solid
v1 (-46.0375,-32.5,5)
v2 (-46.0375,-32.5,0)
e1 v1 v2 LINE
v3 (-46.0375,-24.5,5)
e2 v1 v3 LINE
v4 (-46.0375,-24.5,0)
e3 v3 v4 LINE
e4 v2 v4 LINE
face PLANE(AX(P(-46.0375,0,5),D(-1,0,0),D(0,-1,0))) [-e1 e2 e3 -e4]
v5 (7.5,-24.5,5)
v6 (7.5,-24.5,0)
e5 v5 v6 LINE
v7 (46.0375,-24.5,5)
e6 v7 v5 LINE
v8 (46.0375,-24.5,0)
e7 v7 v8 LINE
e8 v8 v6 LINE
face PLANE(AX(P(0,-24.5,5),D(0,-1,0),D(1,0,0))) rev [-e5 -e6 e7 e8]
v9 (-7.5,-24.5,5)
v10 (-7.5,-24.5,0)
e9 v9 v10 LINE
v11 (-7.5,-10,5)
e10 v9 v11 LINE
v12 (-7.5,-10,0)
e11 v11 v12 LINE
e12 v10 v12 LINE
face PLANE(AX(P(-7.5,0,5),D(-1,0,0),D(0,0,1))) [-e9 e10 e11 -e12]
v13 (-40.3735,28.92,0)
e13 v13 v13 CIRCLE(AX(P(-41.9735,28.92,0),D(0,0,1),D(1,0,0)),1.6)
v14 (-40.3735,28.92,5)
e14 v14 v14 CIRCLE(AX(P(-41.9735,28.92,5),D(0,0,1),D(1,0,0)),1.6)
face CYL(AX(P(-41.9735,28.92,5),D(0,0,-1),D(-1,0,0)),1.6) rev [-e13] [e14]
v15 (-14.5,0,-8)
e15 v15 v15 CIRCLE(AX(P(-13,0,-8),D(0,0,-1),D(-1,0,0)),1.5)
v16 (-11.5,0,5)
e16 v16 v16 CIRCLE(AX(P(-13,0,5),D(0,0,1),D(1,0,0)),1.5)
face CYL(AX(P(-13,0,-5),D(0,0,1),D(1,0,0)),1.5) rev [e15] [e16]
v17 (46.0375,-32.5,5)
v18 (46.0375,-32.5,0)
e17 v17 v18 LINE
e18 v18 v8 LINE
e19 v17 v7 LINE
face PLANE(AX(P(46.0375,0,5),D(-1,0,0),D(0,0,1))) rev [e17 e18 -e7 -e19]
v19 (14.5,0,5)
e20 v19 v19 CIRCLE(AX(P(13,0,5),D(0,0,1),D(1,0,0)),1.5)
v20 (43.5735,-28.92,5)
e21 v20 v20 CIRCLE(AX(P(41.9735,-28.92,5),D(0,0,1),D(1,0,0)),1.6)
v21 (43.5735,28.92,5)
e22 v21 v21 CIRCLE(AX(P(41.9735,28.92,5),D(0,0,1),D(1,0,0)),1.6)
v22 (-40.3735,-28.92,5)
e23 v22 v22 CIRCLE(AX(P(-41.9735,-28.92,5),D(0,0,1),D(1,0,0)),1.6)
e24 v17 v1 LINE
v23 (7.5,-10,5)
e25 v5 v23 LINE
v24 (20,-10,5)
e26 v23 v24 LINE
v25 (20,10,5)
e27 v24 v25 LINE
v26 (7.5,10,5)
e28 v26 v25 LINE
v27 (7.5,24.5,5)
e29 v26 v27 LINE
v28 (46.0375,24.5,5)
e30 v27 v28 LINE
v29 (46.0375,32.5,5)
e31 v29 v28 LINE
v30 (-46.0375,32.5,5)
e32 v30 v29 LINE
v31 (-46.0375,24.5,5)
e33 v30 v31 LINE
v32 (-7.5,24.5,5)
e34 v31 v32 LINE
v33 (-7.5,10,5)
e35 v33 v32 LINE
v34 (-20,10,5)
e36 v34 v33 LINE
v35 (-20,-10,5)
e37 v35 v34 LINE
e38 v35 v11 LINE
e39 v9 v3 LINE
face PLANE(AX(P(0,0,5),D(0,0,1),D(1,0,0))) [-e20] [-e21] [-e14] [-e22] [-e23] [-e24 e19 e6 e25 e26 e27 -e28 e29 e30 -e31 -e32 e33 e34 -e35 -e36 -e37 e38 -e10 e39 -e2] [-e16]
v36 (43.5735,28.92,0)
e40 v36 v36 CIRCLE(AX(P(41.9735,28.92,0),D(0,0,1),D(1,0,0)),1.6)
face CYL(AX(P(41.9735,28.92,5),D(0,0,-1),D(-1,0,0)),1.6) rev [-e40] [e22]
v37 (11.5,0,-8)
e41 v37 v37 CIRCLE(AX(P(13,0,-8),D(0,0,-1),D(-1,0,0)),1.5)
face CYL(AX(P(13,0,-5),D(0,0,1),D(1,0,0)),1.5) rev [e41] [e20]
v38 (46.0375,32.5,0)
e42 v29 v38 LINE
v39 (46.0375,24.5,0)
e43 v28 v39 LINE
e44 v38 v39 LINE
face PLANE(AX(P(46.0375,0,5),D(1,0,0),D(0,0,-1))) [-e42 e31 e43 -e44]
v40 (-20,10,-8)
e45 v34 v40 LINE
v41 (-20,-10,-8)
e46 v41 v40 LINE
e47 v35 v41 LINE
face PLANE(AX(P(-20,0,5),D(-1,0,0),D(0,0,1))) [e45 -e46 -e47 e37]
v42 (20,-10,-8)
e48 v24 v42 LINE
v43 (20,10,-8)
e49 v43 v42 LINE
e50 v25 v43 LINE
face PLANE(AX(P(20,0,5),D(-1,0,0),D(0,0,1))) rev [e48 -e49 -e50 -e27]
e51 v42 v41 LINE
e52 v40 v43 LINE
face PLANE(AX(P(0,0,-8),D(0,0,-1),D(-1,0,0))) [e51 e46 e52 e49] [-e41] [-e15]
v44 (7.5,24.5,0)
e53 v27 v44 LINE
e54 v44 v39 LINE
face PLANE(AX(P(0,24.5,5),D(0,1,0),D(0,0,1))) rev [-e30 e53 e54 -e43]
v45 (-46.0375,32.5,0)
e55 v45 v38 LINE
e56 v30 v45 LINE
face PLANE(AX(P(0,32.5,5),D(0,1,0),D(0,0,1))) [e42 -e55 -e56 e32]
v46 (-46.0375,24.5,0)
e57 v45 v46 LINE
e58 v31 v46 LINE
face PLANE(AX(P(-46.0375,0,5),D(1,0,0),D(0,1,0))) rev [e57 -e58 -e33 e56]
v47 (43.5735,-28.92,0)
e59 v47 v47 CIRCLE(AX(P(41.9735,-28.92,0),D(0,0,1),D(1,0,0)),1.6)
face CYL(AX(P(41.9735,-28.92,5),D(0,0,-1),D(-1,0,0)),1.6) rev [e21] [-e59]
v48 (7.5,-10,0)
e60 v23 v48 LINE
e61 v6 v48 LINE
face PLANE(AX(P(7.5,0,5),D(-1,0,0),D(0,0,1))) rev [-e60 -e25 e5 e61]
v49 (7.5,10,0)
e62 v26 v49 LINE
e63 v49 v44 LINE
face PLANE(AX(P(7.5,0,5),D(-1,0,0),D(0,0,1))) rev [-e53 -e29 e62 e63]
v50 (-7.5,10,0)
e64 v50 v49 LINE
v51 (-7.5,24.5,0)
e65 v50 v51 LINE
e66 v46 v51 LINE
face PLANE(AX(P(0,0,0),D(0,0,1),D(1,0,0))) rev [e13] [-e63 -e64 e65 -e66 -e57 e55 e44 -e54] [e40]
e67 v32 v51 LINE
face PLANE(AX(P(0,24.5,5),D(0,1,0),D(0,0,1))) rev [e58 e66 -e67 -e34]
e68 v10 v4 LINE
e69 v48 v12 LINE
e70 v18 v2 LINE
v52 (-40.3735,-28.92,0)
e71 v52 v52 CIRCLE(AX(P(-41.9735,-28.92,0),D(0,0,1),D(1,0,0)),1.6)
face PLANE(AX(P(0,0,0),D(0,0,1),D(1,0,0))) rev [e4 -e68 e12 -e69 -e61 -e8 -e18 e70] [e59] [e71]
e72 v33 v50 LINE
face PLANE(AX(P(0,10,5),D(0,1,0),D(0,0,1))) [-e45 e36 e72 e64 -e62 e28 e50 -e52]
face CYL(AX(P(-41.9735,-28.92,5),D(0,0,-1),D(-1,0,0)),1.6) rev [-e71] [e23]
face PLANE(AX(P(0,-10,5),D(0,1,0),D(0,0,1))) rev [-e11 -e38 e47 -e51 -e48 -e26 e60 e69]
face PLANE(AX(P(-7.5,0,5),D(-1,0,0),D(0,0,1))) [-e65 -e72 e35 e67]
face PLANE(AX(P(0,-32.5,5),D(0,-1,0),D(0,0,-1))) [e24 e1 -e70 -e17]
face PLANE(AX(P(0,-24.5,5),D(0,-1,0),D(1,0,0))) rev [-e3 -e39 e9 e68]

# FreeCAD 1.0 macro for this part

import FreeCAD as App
import Part
import Sketcher

V = App.Vector


def add_polygon(sketch, points):
    """Adds a closed chain of lines whose ends are joined by coincident constraints."""
    first, n = sketch.GeometryCount, len(points)
    for a, b in zip(points, points[1:] + points[:1]):
        sketch.addGeometry(Part.LineSegment(App.Vector(*a, 0), App.Vector(*b, 0)), False)
    for i in range(n):
        sketch.addConstraint(Sketcher.Constraint("Coincident", first + i, 2, first + (i + 1) % n, 1))

doc = App.newDocument("Part")
params = doc.addObject("Spreadsheet::Sheet", "Params")
for row, (alias, value) in enumerate([
    ("sketch1_diameter", "3.2 mm"),
    ("sketch1_height", "8 mm"),
    ("sketch1_height2", "20 mm"),
    ("sketch1_width", "12.5 mm"),
    ("sketch1_height3", "14.5 mm"),
    ("pad1_length", "5 mm"),
    ("sketch2_diameter", "3 mm"),
    ("pocket1_length", "10 mm"),
    ("sketch3_diameter", "3 mm"),
    ("sketch3_width", "40 mm"),
    ("sketch3_height", "20 mm"),
    ("pad2_length", "8 mm"),
], start=1):
    params.set(f"A{row}", alias)
    params.set(f"B{row}", "=" + value)
    params.setAlias(f"B{row}", alias)

body = doc.addObject("PartDesign::Body", "Body")

# Sketch on XY plane
sketch1 = doc.addObject("Sketcher::SketchObject", "Sketch")
body.addObject(sketch1)
sketch1.AttachmentSupport = (doc.XY_Plane, [""])
sketch1.MapMode = "FlatFace"
add_polygon(sketch1, [(-46, 32.5), (-46, 24.5), (-7.5, 24.5), (-7.5, 10), (-20, 10), (-20, -10), (-7.5, -10), (-7.5, -24.5), (-46, -24.5), (-46, -32.5), (46, -32.5), (46, -24.5), (7.5, -24.5), (7.5, -10), (20, -10), (20, 10), (7.5, 10), (7.5, 24.5), (46, 24.5), (46, 32.5)])  # lines 0-19
sketch1.addGeometry(Part.Circle(V(-42, 28.9, 0), V(0, 0, 1), 1.6), False)  # 20
sketch1.addGeometry(Part.Circle(V(42, 28.9, 0), V(0, 0, 1), 1.6), False)  # 21
sketch1.addGeometry(Part.Circle(V(42, -28.9, 0), V(0, 0, 1), 1.6), False)  # 22
sketch1.addGeometry(Part.Circle(V(-42, -28.9, 0), V(0, 0, 1), 1.6), False)  # 23
sketch1.addConstraint([
    Sketcher.Constraint("Vertical", 0),
    Sketcher.Constraint("Horizontal", 1),
    Sketcher.Constraint("Vertical", 2),
    Sketcher.Constraint("Horizontal", 3),
    Sketcher.Constraint("Vertical", 4),
    Sketcher.Constraint("Horizontal", 5),
    Sketcher.Constraint("Vertical", 6),
    Sketcher.Constraint("Horizontal", 7),
    Sketcher.Constraint("Vertical", 8),
    Sketcher.Constraint("Horizontal", 9),
    Sketcher.Constraint("Vertical", 10),
    Sketcher.Constraint("Horizontal", 11),
    Sketcher.Constraint("Vertical", 12),
    Sketcher.Constraint("Horizontal", 13),
    Sketcher.Constraint("Vertical", 14),
    Sketcher.Constraint("Horizontal", 15),
    Sketcher.Constraint("Vertical", 16),
    Sketcher.Constraint("Horizontal", 17),
    Sketcher.Constraint("Vertical", 18),
    Sketcher.Constraint("Horizontal", 19),
    Sketcher.Constraint("Equal", 20, 21),
    Sketcher.Constraint("Equal", 21, 22),
    Sketcher.Constraint("Equal", 22, 23),
    Sketcher.Constraint("Symmetric", 20, 3, 22, 3, -1, 1),
    Sketcher.Constraint("Symmetric", 21, 3, 23, 3, -1, 1),
    Sketcher.Constraint("Symmetric", 0, 2, 10, 2, -1, 1),
    Sketcher.Constraint("Symmetric", 2, 2, 12, 2, -1, 1),
    Sketcher.Constraint("Symmetric", 4, 2, 14, 2, -1, 1),
    Sketcher.Constraint("Symmetric", 6, 2, 16, 2, -1, 1),
    Sketcher.Constraint("Symmetric", 8, 2, 18, 2, -1, 1),
    Sketcher.Constraint("Symmetric", 20, 3, 21, 3, -2),
    Sketcher.Constraint("Symmetric", 7, 2, 10, 2, -2),
    Sketcher.Constraint("Symmetric", 5, 2, 12, 2, -2),
    Sketcher.Constraint("Diameter", 20, 3.2),
    Sketcher.Constraint("DistanceY", 0, 2, 0, 1, 8.0),
    Sketcher.Constraint("DistanceY", 4, 2, 4, 1, 20.0),
    Sketcher.Constraint("DistanceX", 3, 2, 3, 1, 12.5),
    Sketcher.Constraint("DistanceY", 2, 2, 2, 1, 14.5),
    Sketcher.Constraint("DistanceX", 3, 2, -1, 1, 20.0),
    Sketcher.Constraint("DistanceX", 9, 1, 9, 2, 92.075),
    Sketcher.Constraint("DistanceY", -1, 1, 20, 3, 28.92),
    Sketcher.Constraint("DistanceX", 20, 3, 21, 3, 83.947),
])
sketch1.setExpression("Constraints[53]", "Params.sketch1_diameter")
sketch1.setExpression("Constraints[54]", "Params.sketch1_height")
sketch1.setExpression("Constraints[55]", "Params.sketch1_height2")
sketch1.setExpression("Constraints[56]", "Params.sketch1_width")
sketch1.setExpression("Constraints[57]", "Params.sketch1_height3")
pad1 = doc.addObject("PartDesign::Pad", "Pad")
body.addObject(pad1)
pad1.Profile = sketch1
pad1.setExpression("Length", "Params.pad1_length")

# Sketch on XY plane
sketch2 = doc.addObject("Sketcher::SketchObject", "Sketch001")
body.addObject(sketch2)
sketch2.AttachmentSupport = (doc.XY_Plane, [""])
sketch2.MapMode = "FlatFace"
sketch2.AttachmentOffset = App.Placement(V(0, 0, 5), App.Rotation())
sketch2.addGeometry([
    Part.Circle(V(13, 0, 0), V(0, 0, 1), 1.5),
    Part.Circle(V(-13, 0, 0), V(0, 0, 1), 1.5),
], False)
sketch2.addConstraint([
    Sketcher.Constraint("Equal", 0, 1),
    Sketcher.Constraint("Symmetric", 0, 3, 1, 3, -1, 1),
    Sketcher.Constraint("PointOnObject", 0, 3, -1),
    Sketcher.Constraint("Diameter", 0, 3.0),
    Sketcher.Constraint("DistanceX", -1, 1, 0, 3, 13.0),
])
sketch2.setExpression("Constraints[3]", "Params.sketch2_diameter")
pocket1 = doc.addObject("PartDesign::Pocket", "Pocket")
body.addObject(pocket1)
pocket1.Profile = sketch2
pocket1.setExpression("Length", "Params.pocket1_length")

# Sketch on XY plane
sketch3 = doc.addObject("Sketcher::SketchObject", "Sketch002")
body.addObject(sketch3)
sketch3.AttachmentSupport = (doc.XY_Plane, [""])
sketch3.MapMode = "FlatFace"
add_polygon(sketch3, [(20, 10), (20, -10), (-20, -10), (-20, 10)])  # lines 0-3
sketch3.addGeometry(Part.Circle(V(13, 0, 0), V(0, 0, 1), 1.5), False)  # 4
sketch3.addGeometry(Part.Circle(V(-13, 0, 0), V(0, 0, 1), 1.5), False)  # 5
sketch3.addConstraint([
    Sketcher.Constraint("Vertical", 0),
    Sketcher.Constraint("Horizontal", 1),
    Sketcher.Constraint("Vertical", 2),
    Sketcher.Constraint("Horizontal", 3),
    Sketcher.Constraint("Equal", 4, 5),
    Sketcher.Constraint("Symmetric", 4, 3, 5, 3, -1, 1),
    Sketcher.Constraint("Symmetric", 0, 2, 2, 2, -1, 1),
    Sketcher.Constraint("PointOnObject", 4, 3, -1),
    Sketcher.Constraint("Diameter", 4, 3.0),
    Sketcher.Constraint("DistanceX", 1, 2, 1, 1, 40.0),
    Sketcher.Constraint("DistanceY", 0, 2, 0, 1, 20.0),
    Sketcher.Constraint("DistanceX", -1, 1, 4, 3, 13.0),
])
sketch3.setExpression("Constraints[12]", "Params.sketch3_diameter")
sketch3.setExpression("Constraints[13]", "Params.sketch3_width")
sketch3.setExpression("Constraints[14]", "Params.sketch3_height")
pad2 = doc.addObject("PartDesign::Pad", "Pad001")
body.addObject(pad2)
pad2.Profile = sketch3
pad2.setExpression("Length", "Params.pad2_length")
pad2.Reversed = True

doc.recompute()
